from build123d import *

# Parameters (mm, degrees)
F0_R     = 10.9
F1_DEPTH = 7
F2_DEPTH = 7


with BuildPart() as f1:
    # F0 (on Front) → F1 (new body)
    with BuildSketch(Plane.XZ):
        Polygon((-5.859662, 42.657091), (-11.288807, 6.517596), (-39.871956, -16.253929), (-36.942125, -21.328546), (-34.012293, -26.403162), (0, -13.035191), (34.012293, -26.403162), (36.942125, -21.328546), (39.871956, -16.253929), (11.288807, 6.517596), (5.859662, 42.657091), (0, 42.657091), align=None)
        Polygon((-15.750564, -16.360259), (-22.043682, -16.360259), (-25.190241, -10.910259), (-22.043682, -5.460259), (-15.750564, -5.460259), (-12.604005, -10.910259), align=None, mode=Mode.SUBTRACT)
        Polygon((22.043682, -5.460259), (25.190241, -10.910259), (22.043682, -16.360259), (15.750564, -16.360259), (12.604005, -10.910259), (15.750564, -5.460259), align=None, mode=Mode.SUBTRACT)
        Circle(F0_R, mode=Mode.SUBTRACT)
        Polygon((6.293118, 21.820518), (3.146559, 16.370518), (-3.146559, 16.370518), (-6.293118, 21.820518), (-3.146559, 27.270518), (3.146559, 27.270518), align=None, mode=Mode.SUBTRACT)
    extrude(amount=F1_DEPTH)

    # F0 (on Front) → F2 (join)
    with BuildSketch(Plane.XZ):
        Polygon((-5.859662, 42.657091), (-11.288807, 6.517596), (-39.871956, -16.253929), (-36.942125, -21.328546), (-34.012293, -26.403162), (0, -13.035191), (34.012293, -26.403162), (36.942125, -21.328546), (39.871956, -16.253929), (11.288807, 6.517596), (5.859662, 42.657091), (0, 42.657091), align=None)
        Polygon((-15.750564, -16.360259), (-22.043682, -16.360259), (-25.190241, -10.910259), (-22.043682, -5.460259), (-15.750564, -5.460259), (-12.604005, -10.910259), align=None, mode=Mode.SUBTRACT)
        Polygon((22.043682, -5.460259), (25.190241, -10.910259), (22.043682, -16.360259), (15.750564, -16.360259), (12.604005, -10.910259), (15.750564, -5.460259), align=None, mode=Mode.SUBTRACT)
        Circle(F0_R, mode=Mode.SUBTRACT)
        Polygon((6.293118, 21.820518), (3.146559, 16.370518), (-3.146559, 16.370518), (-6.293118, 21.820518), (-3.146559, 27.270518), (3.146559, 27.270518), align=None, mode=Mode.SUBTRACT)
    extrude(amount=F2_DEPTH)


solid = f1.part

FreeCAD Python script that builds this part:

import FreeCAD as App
import Part
import Sketcher
Q = App.Units.Quantity

doc = App.newDocument("Part")
body = doc.addObject("PartDesign::Body", "Body")

sketch1 = body.newObject("Sketcher::SketchObject", "Sketch")
sketch1.AttachmentSupport = (doc.getObject("XZ_Plane"), [""])
sketch1.MapMode = "FlatFace"
sketch1.addGeometry([
    Part.LineSegment(App.Vector(-5.859662, 42.657091, 0), App.Vector(-11.288807, 6.517596, 0)),
    Part.LineSegment(App.Vector(-11.288807, 6.517596, 0), App.Vector(-39.871956, -16.253929, 0)),
    Part.LineSegment(App.Vector(-39.871956, -16.253929, 0), App.Vector(-36.942125, -21.328546, 0)),
    Part.LineSegment(App.Vector(-36.942125, -21.328546, 0), App.Vector(-34.012293, -26.403162, 0)),
    Part.LineSegment(App.Vector(-34.012293, -26.403162, 0), App.Vector(0, -13.035191, 0)),
    Part.LineSegment(App.Vector(0, -13.035191, 0), App.Vector(34.012293, -26.403162, 0)),
    Part.LineSegment(App.Vector(34.012293, -26.403162, 0), App.Vector(36.942125, -21.328546, 0)),
    Part.LineSegment(App.Vector(36.942125, -21.328546, 0), App.Vector(39.871956, -16.253929, 0)),
    Part.LineSegment(App.Vector(39.871956, -16.253929, 0), App.Vector(11.288807, 6.517596, 0)),
    Part.LineSegment(App.Vector(11.288807, 6.517596, 0), App.Vector(5.859662, 42.657091, 0)),
    Part.LineSegment(App.Vector(5.859662, 42.657091, 0), App.Vector(-5.859662, 42.657091, 0)),
    Part.LineSegment(App.Vector(-12.604005, -10.910259, 0), App.Vector(-15.750564, -16.360259, 0)),
    Part.LineSegment(App.Vector(-15.750564, -16.360259, 0), App.Vector(-22.043682, -16.360259, 0)),
    Part.LineSegment(App.Vector(-22.043682, -16.360259, 0), App.Vector(-25.190241, -10.910259, 0)),
    Part.LineSegment(App.Vector(-25.190241, -10.910259, 0), App.Vector(-22.043682, -5.460259, 0)),
    Part.LineSegment(App.Vector(-22.043682, -5.460259, 0), App.Vector(-15.750564, -5.460259, 0)),
    Part.LineSegment(App.Vector(-15.750564, -5.460259, 0), App.Vector(-12.604005, -10.910259, 0)),
    Part.LineSegment(App.Vector(15.750564, -5.460259, 0), App.Vector(22.043682, -5.460259, 0)),
    Part.LineSegment(App.Vector(22.043682, -5.460259, 0), App.Vector(25.190241, -10.910259, 0)),
    Part.LineSegment(App.Vector(25.190241, -10.910259, 0), App.Vector(22.043682, -16.360259, 0)),
    Part.LineSegment(App.Vector(22.043682, -16.360259, 0), App.Vector(15.750564, -16.360259, 0)),
    Part.LineSegment(App.Vector(15.750564, -16.360259, 0), App.Vector(12.604005, -10.910259, 0)),
    Part.LineSegment(App.Vector(12.604005, -10.910259, 0), App.Vector(15.750564, -5.460259, 0)),
    Part.Circle(App.Vector(0, 0, 0), App.Vector(0, 0, 1), 10.9),
    Part.LineSegment(App.Vector(3.146559, 27.270518, 0), App.Vector(6.293118, 21.820518, 0)),
    Part.LineSegment(App.Vector(6.293118, 21.820518, 0), App.Vector(3.146559, 16.370518, 0)),
    Part.LineSegment(App.Vector(3.146559, 16.370518, 0), App.Vector(-3.146559, 16.370518, 0)),
    Part.LineSegment(App.Vector(-3.146559, 16.370518, 0), App.Vector(-6.293118, 21.820518, 0)),
    Part.LineSegment(App.Vector(-6.293118, 21.820518, 0), App.Vector(-3.146559, 27.270518, 0)),
    Part.LineSegment(App.Vector(-3.146559, 27.270518, 0), App.Vector(3.146559, 27.270518, 0)),
], False)
sketch1.addConstraint([
    Sketcher.Constraint("Coincident", 0, 2, 1, 1),
    Sketcher.Constraint("Coincident", 1, 2, 2, 1),
    Sketcher.Constraint("Coincident", 2, 2, 3, 1),
    Sketcher.Constraint("Coincident", 3, 2, 4, 1),
    Sketcher.Constraint("Coincident", 4, 2, 5, 1),
    Sketcher.Constraint("Coincident", 5, 2, 6, 1),
    Sketcher.Constraint("Coincident", 6, 2, 7, 1),
    Sketcher.Constraint("Coincident", 7, 2, 8, 1),
    Sketcher.Constraint("Coincident", 8, 2, 9, 1),
    Sketcher.Constraint("Coincident", 9, 2, 10, 1),
    Sketcher.Constraint("Coincident", 10, 2, 0, 1),
    Sketcher.Constraint("Coincident", 11, 2, 12, 1),
    Sketcher.Constraint("Coincident", 12, 2, 13, 1),
    Sketcher.Constraint("Coincident", 13, 2, 14, 1),
    Sketcher.Constraint("Coincident", 14, 2, 15, 1),
    Sketcher.Constraint("Coincident", 15, 2, 16, 1),
    Sketcher.Constraint("Coincident", 16, 2, 11, 1),
    Sketcher.Constraint("Coincident", 17, 2, 18, 1),
    Sketcher.Constraint("Coincident", 18, 2, 19, 1),
    Sketcher.Constraint("Coincident", 19, 2, 20, 1),
    Sketcher.Constraint("Coincident", 20, 2, 21, 1),
    Sketcher.Constraint("Coincident", 21, 2, 22, 1),
    Sketcher.Constraint("Coincident", 22, 2, 17, 1),
    Sketcher.Constraint("Coincident", 24, 2, 25, 1),
    Sketcher.Constraint("Coincident", 25, 2, 26, 1),
    Sketcher.Constraint("Coincident", 26, 2, 27, 1),
    Sketcher.Constraint("Coincident", 27, 2, 28, 1),
    Sketcher.Constraint("Coincident", 28, 2, 29, 1),
    Sketcher.Constraint("Coincident", 29, 2, 24, 1),
    Sketcher.Constraint("Horizontal", 10),
    Sketcher.Constraint("Horizontal", 12),
    Sketcher.Constraint("Horizontal", 15),
    Sketcher.Constraint("Horizontal", 17),
    Sketcher.Constraint("Horizontal", 20),
    Sketcher.Constraint("Horizontal", 26),
    Sketcher.Constraint("Horizontal", 29),
    Sketcher.Constraint("Coincident", 23, 3, -1, 1),
    Sketcher.Constraint("PointOnObject", 4, 2, -2),
    Sketcher.Constraint("Diameter", 23, Q("21.8 mm")),
    Sketcher.Constraint("DistanceY", 12, 2, 14, 2, Q("10.9 mm")),
    Sketcher.Constraint("DistanceY", 19, 2, 17, 2, Q("10.9 mm")),
    Sketcher.Constraint("DistanceY", 26, 2, 28, 2, Q("10.9 mm")),
    Sketcher.Constraint("DistanceY", 12, 2, 13, 2, Q("5.45 mm")),
    Sketcher.Constraint("DistanceY", 11, 2, 16, 2, Q("5.45 mm")),
    Sketcher.Constraint("DistanceY", 18, 2, 17, 2, Q("5.45 mm")),
    Sketcher.Constraint("DistanceY", 20, 2, 21, 2, Q("5.45 mm")),
    Sketcher.Constraint("DistanceY", 25, 2, 24, 2, Q("5.45 mm")),
    Sketcher.Constraint("DistanceY", 26, 2, 27, 2, Q("5.45 mm")),
    Sketcher.Constraint("DistanceX", 0, 2, 5, 2, Q("45.3011 mm")),
    Sketcher.Constraint("DistanceX", 10, 2, 10, 1, Q("11.719324 mm")),
    Sketcher.Constraint("DistanceX", 12, 2, 12, 1, Q("6.293118 mm")),
    Sketcher.Constraint("DistanceX", 15, 1, 15, 2, Q("6.293118 mm")),
    Sketcher.Constraint("DistanceX", 17, 1, 17, 2, Q("6.293118 mm")),
    Sketcher.Constraint("DistanceX", 20, 2, 20, 1, Q("6.293118 mm")),
    Sketcher.Constraint("DistanceX", 26, 2, 26, 1, Q("6.293118 mm")),
    Sketcher.Constraint("DistanceX", 29, 1, 29, 2, Q("6.293118 mm")),
    Sketcher.Constraint("DistanceY", 1, 2, -1, 1, Q("16.253929 mm")),
    Sketcher.Constraint("DistanceY", 3, 2, -1, 1, Q("26.403162 mm")),
    Sketcher.Constraint("DistanceY", 4, 2, -1, 1, Q("13.035191 mm")),
    Sketcher.Constraint("DistanceY", 5, 2, -1, 1, Q("26.403162 mm")),
    Sketcher.Constraint("DistanceY", 7, 2, -1, 1, Q("16.253929 mm")),
    Sketcher.Constraint("DistanceY", -1, 1, 9, 2, Q("42.657091 mm")),
    Sketcher.Constraint("DistanceY", 11, 2, -1, 1, Q("16.360259 mm")),
    Sketcher.Constraint("DistanceX", 13, 2, -1, 1, Q("25.190241 mm")),
    Sketcher.Constraint("DistanceY", 17, 2, -1, 1, Q("5.460259 mm")),
    Sketcher.Constraint("DistanceX", -1, 1, 18, 2, Q("25.190241 mm")),
    Sketcher.Constraint("DistanceY", -1, 1, 24, 2, Q("21.820518 mm")),
    Sketcher.Constraint("DistanceX", -1, 1, 25, 2, Q("3.146559 mm")),
    Sketcher.Constraint("DistanceX", 28, 2, -1, 1, Q("3.146559 mm")),
    Sketcher.Constraint("DistanceX", 1, 2, 0, 2, Q("28.583149 mm")),
    Sketcher.Constraint("DistanceX", 1, 2, 2, 2, Q("2.929831 mm")),
    Sketcher.Constraint("DistanceX", 2, 2, 3, 2, Q("2.929832 mm")),
    Sketcher.Constraint("DistanceX", 5, 2, 6, 2, Q("2.929832 mm")),
    Sketcher.Constraint("DistanceX", 6, 2, 7, 2, Q("2.929831 mm")),
    Sketcher.Constraint("DistanceX", 8, 2, 7, 2, Q("28.583149 mm")),
    Sketcher.Constraint("DistanceX", 0, 2, 9, 2, Q("17.148469 mm")),
    Sketcher.Constraint("DistanceX", 3, 2, 11, 2, Q("18.261729 mm")),
    Sketcher.Constraint("DistanceX", 13, 2, 12, 2, Q("3.146559 mm")),
    Sketcher.Constraint("DistanceX", 13, 2, 14, 2, Q("3.146559 mm")),
    Sketcher.Constraint("DistanceX", 11, 2, 16, 2, Q("3.146559 mm")),
    Sketcher.Constraint("DistanceX", 17, 2, 18, 2, Q("3.146559 mm")),
    Sketcher.Constraint("DistanceX", 19, 2, 18, 2, Q("3.146559 mm")),
    Sketcher.Constraint("DistanceX", 21, 2, 20, 2, Q("3.146559 mm")),
    Sketcher.Constraint("DistanceX", 24, 2, 8, 2, Q("4.995689 mm")),
    Sketcher.Constraint("DistanceY", 8, 2, 24, 2, Q("15.302922 mm")),
    Sketcher.Constraint("DistanceY", 0, 2, 24, 2, Q("15.302922 mm")),
    Sketcher.Constraint("DistanceX", 27, 2, 26, 2, Q("3.146559 mm")),
    Sketcher.Constraint("Distance", 2, Q("5.859663 mm")),
    Sketcher.Constraint("Distance", 6, Q("5.859662 mm")),
])
pad1 = body.newObject("PartDesign::Pad", "Pad")
pad1.Profile = sketch1
pad1.Length = 7

sketch2 = body.newObject("Sketcher::SketchObject", "Sketch001")
sketch2.AttachmentSupport = (doc.getObject("XZ_Plane"), [""])
sketch2.MapMode = "FlatFace"
sketch2.addGeometry([
    Part.LineSegment(App.Vector(-5.859662, 42.657091, 0), App.Vector(-11.288807, 6.517596, 0)),
    Part.LineSegment(App.Vector(-11.288807, 6.517596, 0), App.Vector(-39.871956, -16.253929, 0)),
    Part.LineSegment(App.Vector(-39.871956, -16.253929, 0), App.Vector(-36.942125, -21.328546, 0)),
    Part.LineSegment(App.Vector(-36.942125, -21.328546, 0), App.Vector(-34.012293, -26.403162, 0)),
    Part.LineSegment(App.Vector(-34.012293, -26.403162, 0), App.Vector(0, -13.035191, 0)),
    Part.LineSegment(App.Vector(0, -13.035191, 0), App.Vector(34.012293, -26.403162, 0)),
    Part.LineSegment(App.Vector(34.012293, -26.403162, 0), App.Vector(36.942125, -21.328546, 0)),
    Part.LineSegment(App.Vector(36.942125, -21.328546, 0), App.Vector(39.871956, -16.253929, 0)),
    Part.LineSegment(App.Vector(39.871956, -16.253929, 0), App.Vector(11.288807, 6.517596, 0)),
    Part.LineSegment(App.Vector(11.288807, 6.517596, 0), App.Vector(5.859662, 42.657091, 0)),
    Part.LineSegment(App.Vector(5.859662, 42.657091, 0), App.Vector(-5.859662, 42.657091, 0)),
    Part.LineSegment(App.Vector(-12.604005, -10.910259, 0), App.Vector(-15.750564, -16.360259, 0)),
    Part.LineSegment(App.Vector(-15.750564, -16.360259, 0), App.Vector(-22.043682, -16.360259, 0)),
    Part.LineSegment(App.Vector(-22.043682, -16.360259, 0), App.Vector(-25.190241, -10.910259, 0)),
    Part.LineSegment(App.Vector(-25.190241, -10.910259, 0), App.Vector(-22.043682, -5.460259, 0)),
    Part.LineSegment(App.Vector(-22.043682, -5.460259, 0), App.Vector(-15.750564, -5.460259, 0)),
    Part.LineSegment(App.Vector(-15.750564, -5.460259, 0), App.Vector(-12.604005, -10.910259, 0)),
    Part.LineSegment(App.Vector(15.750564, -5.460259, 0), App.Vector(22.043682, -5.460259, 0)),
    Part.LineSegment(App.Vector(22.043682, -5.460259, 0), App.Vector(25.190241, -10.910259, 0)),
    Part.LineSegment(App.Vector(25.190241, -10.910259, 0), App.Vector(22.043682, -16.360259, 0)),
    Part.LineSegment(App.Vector(22.043682, -16.360259, 0), App.Vector(15.750564, -16.360259, 0)),
    Part.LineSegment(App.Vector(15.750564, -16.360259, 0), App.Vector(12.604005, -10.910259, 0)),
    Part.LineSegment(App.Vector(12.604005, -10.910259, 0), App.Vector(15.750564, -5.460259, 0)),
    Part.Circle(App.Vector(0, 0, 0), App.Vector(0, 0, 1), 10.9),
    Part.LineSegment(App.Vector(3.146559, 27.270518, 0), App.Vector(6.293118, 21.820518, 0)),
    Part.LineSegment(App.Vector(6.293118, 21.820518, 0), App.Vector(3.146559, 16.370518, 0)),
    Part.LineSegment(App.Vector(3.146559, 16.370518, 0), App.Vector(-3.146559, 16.370518, 0)),
    Part.LineSegment(App.Vector(-3.146559, 16.370518, 0), App.Vector(-6.293118, 21.820518, 0)),
    Part.LineSegment(App.Vector(-6.293118, 21.820518, 0), App.Vector(-3.146559, 27.270518, 0)),
    Part.LineSegment(App.Vector(-3.146559, 27.270518, 0), App.Vector(3.146559, 27.270518, 0)),
], False)
sketch2.addConstraint([
    Sketcher.Constraint("Coincident", 0, 2, 1, 1),
    Sketcher.Constraint("Coincident", 1, 2, 2, 1),
    Sketcher.Constraint("Coincident", 2, 2, 3, 1),
    Sketcher.Constraint("Coincident", 3, 2, 4, 1),
    Sketcher.Constraint("Coincident", 4, 2, 5, 1),
    Sketcher.Constraint("Coincident", 5, 2, 6, 1),
    Sketcher.Constraint("Coincident", 6, 2, 7, 1),
    Sketcher.Constraint("Coincident", 7, 2, 8, 1),
    Sketcher.Constraint("Coincident", 8, 2, 9, 1),
    Sketcher.Constraint("Coincident", 9, 2, 10, 1),
    Sketcher.Constraint("Coincident", 10, 2, 0, 1),
    Sketcher.Constraint("Coincident", 11, 2, 12, 1),
    Sketcher.Constraint("Coincident", 12, 2, 13, 1),
    Sketcher.Constraint("Coincident", 13, 2, 14, 1),
    Sketcher.Constraint("Coincident", 14, 2, 15, 1),
    Sketcher.Constraint("Coincident", 15, 2, 16, 1),
    Sketcher.Constraint("Coincident", 16, 2, 11, 1),
    Sketcher.Constraint("Coincident", 17, 2, 18, 1),
    Sketcher.Constraint("Coincident", 18, 2, 19, 1),
    Sketcher.Constraint("Coincident", 19, 2, 20, 1),
    Sketcher.Constraint("Coincident", 20, 2, 21, 1),
    Sketcher.Constraint("Coincident", 21, 2, 22, 1),
    Sketcher.Constraint("Coincident", 22, 2, 17, 1),
    Sketcher.Constraint("Coincident", 24, 2, 25, 1),
    Sketcher.Constraint("Coincident", 25, 2, 26, 1),
    Sketcher.Constraint("Coincident", 26, 2, 27, 1),
    Sketcher.Constraint("Coincident", 27, 2, 28, 1),
    Sketcher.Constraint("Coincident", 28, 2, 29, 1),
    Sketcher.Constraint("Coincident", 29, 2, 24, 1),
    Sketcher.Constraint("Horizontal", 10),
    Sketcher.Constraint("Horizontal", 12),
    Sketcher.Constraint("Horizontal", 15),
    Sketcher.Constraint("Horizontal", 17),
    Sketcher.Constraint("Horizontal", 20),
    Sketcher.Constraint("Horizontal", 26),
    Sketcher.Constraint("Horizontal", 29),
    Sketcher.Constraint("Coincident", 23, 3, -1, 1),
    Sketcher.Constraint("PointOnObject", 4, 2, -2),
    Sketcher.Constraint("Diameter", 23, Q("21.8 mm")),
    Sketcher.Constraint("DistanceY", 12, 2, 14, 2, Q("10.9 mm")),
    Sketcher.Constraint("DistanceY", 19, 2, 17, 2, Q("10.9 mm")),
    Sketcher.Constraint("DistanceY", 26, 2, 28, 2, Q("10.9 mm")),
    Sketcher.Constraint("DistanceY", 12, 2, 13, 2, Q("5.45 mm")),
    Sketcher.Constraint("DistanceY", 11, 2, 16, 2, Q("5.45 mm")),
    Sketcher.Constraint("DistanceY", 18, 2, 17, 2, Q("5.45 mm")),
    Sketcher.Constraint("DistanceY", 20, 2, 21, 2, Q("5.45 mm")),
    Sketcher.Constraint("DistanceY", 25, 2, 24, 2, Q("5.45 mm")),
    Sketcher.Constraint("DistanceY", 26, 2, 27, 2, Q("5.45 mm")),
    Sketcher.Constraint("DistanceX", 0, 2, 5, 2, Q("45.3011 mm")),
    Sketcher.Constraint("DistanceX", 10, 2, 10, 1, Q("11.719324 mm")),
    Sketcher.Constraint("DistanceX", 12, 2, 12, 1, Q("6.293118 mm")),
    Sketcher.Constraint("DistanceX", 15, 1, 15, 2, Q("6.293118 mm")),
    Sketcher.Constraint("DistanceX", 17, 1, 17, 2, Q("6.293118 mm")),
    Sketcher.Constraint("DistanceX", 20, 2, 20, 1, Q("6.293118 mm")),
    Sketcher.Constraint("DistanceX", 26, 2, 26, 1, Q("6.293118 mm")),
    Sketcher.Constraint("DistanceX", 29, 1, 29, 2, Q("6.293118 mm")),
    Sketcher.Constraint("DistanceY", 1, 2, -1, 1, Q("16.253929 mm")),
    Sketcher.Constraint("DistanceY", 3, 2, -1, 1, Q("26.403162 mm")),
    Sketcher.Constraint("DistanceY", 4, 2, -1, 1, Q("13.035191 mm")),
    Sketcher.Constraint("DistanceY", 5, 2, -1, 1, Q("26.403162 mm")),
    Sketcher.Constraint("DistanceY", 7, 2, -1, 1, Q("16.253929 mm")),
    Sketcher.Constraint("DistanceY", -1, 1, 9, 2, Q("42.657091 mm")),
    Sketcher.Constraint("DistanceY", 11, 2, -1, 1, Q("16.360259 mm")),
    Sketcher.Constraint("DistanceX", 13, 2, -1, 1, Q("25.190241 mm")),
    Sketcher.Constraint("DistanceY", 17, 2, -1, 1, Q("5.460259 mm")),
    Sketcher.Constraint("DistanceX", -1, 1, 18, 2, Q("25.190241 mm")),
    Sketcher.Constraint("DistanceY", -1, 1, 24, 2, Q("21.820518 mm")),
    Sketcher.Constraint("DistanceX", -1, 1, 25, 2, Q("3.146559 mm")),
    Sketcher.Constraint("DistanceX", 28, 2, -1, 1, Q("3.146559 mm")),
    Sketcher.Constraint("DistanceX", 1, 2, 0, 2, Q("28.583149 mm")),
    Sketcher.Constraint("DistanceX", 1, 2, 2, 2, Q("2.929831 mm")),
    Sketcher.Constraint("DistanceX", 2, 2, 3, 2, Q("2.929832 mm")),
    Sketcher.Constraint("DistanceX", 5, 2, 6, 2, Q("2.929832 mm")),
    Sketcher.Constraint("DistanceX", 6, 2, 7, 2, Q("2.929831 mm")),
    Sketcher.Constraint("DistanceX", 8, 2, 7, 2, Q("28.583149 mm")),
    Sketcher.Constraint("DistanceX", 0, 2, 9, 2, Q("17.148469 mm")),
    Sketcher.Constraint("DistanceX", 3, 2, 11, 2, Q("18.261729 mm")),
    Sketcher.Constraint("DistanceX", 13, 2, 12, 2, Q("3.146559 mm")),
    Sketcher.Constraint("DistanceX", 13, 2, 14, 2, Q("3.146559 mm")),
    Sketcher.Constraint("DistanceX", 11, 2, 16, 2, Q("3.146559 mm")),
    Sketcher.Constraint("DistanceX", 17, 2, 18, 2, Q("3.146559 mm")),
    Sketcher.Constraint("DistanceX", 19, 2, 18, 2, Q("3.146559 mm")),
    Sketcher.Constraint("DistanceX", 21, 2, 20, 2, Q("3.146559 mm")),
    Sketcher.Constraint("DistanceX", 24, 2, 8, 2, Q("4.995689 mm")),
    Sketcher.Constraint("DistanceY", 8, 2, 24, 2, Q("15.302922 mm")),
    Sketcher.Constraint("DistanceY", 0, 2, 24, 2, Q("15.302922 mm")),
    Sketcher.Constraint("DistanceX", 27, 2, 26, 2, Q("3.146559 mm")),
    Sketcher.Constraint("Distance", 2, Q("5.859663 mm")),
    Sketcher.Constraint("Distance", 6, Q("5.859662 mm")),
])
pad2 = body.newObject("PartDesign::Pad", "Pad001")
pad2.Profile = sketch2
pad2.Length = 7

doc.recompute()
